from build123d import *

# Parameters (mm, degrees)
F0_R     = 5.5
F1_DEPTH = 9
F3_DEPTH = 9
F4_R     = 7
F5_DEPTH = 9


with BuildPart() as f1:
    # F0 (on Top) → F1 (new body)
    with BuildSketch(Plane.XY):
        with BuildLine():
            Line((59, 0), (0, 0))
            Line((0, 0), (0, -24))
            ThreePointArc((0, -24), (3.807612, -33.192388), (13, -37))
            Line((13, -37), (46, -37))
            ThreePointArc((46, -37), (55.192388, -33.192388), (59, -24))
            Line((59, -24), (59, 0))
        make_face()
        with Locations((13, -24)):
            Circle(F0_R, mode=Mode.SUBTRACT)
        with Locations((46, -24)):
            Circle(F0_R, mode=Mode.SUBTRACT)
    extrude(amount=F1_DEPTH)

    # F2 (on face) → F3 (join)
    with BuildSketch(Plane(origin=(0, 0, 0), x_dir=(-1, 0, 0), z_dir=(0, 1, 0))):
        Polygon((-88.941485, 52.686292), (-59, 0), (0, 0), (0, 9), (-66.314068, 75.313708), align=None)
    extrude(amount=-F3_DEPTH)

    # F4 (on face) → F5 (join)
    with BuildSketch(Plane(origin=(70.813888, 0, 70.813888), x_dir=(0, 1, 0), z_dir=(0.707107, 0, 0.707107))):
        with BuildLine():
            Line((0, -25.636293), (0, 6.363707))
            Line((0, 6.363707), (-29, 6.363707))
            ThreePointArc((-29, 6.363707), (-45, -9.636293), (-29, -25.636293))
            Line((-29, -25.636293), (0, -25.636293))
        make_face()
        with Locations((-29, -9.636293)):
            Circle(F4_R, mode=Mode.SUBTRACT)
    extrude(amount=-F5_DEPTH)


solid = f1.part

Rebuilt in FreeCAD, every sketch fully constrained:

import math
import FreeCAD as App
import Part
import Sketcher
from FreeCAD import Vector
Q = App.Units.Quantity


def add_polygon(sketch, points):
    """Adds a closed chain of lines whose ends are joined by coincident constraints."""
    first, n = sketch.GeometryCount, len(points)
    for a, b in zip(points, points[1:] + points[:1]):
        sketch.addGeometry(Part.LineSegment(App.Vector(*a, 0), App.Vector(*b, 0)), False)
    for i in range(n):
        sketch.addConstraint(Sketcher.Constraint("Coincident", first + i, 2, first + (i + 1) % n, 1))

doc = App.newDocument("Part")
body = doc.addObject("PartDesign::Body", "Body")

sketch1 = doc.addObject("Sketcher::SketchObject", "Sketch")
body.addObject(sketch1)
sketch1.AttachmentSupport = (doc.XY_Plane, [""])
sketch1.MapMode = "FlatFace"
sketch1.addGeometry([
    Part.LineSegment(Vector(59, 0, 0), Vector(0, 0, 0)),
    Part.LineSegment(Vector(0, 0, 0), Vector(0, -24, 0)),
    Part.ArcOfCircle(Part.Circle(Vector(13, -24, 0), Vector(0, 0, 1), 13), math.radians(-180), math.radians(-90)),
    Part.LineSegment(Vector(13, -37, 0), Vector(46, -37, 0)),
    Part.ArcOfCircle(Part.Circle(Vector(46, -24, 0), Vector(0, 0, 1), 13), math.radians(-90), math.radians(0)),
    Part.LineSegment(Vector(59, -24, 0), Vector(59, 0, 0)),
    Part.Circle(Vector(13, -24, 0), Vector(0, 0, 1), 6),
    Part.Circle(Vector(46, -24, 0), Vector(0, 0, 1), 6),
], False)
sketch1.addConstraint([
    Sketcher.Constraint("Coincident", 0, 2, 1, 1),
    Sketcher.Constraint("Tangent", 1, 2, 2, 1),
    Sketcher.Constraint("Tangent", 2, 2, 3, 1),
    Sketcher.Constraint("Tangent", 3, 2, 4, 1),
    Sketcher.Constraint("Tangent", 4, 2, 5, 1),
    Sketcher.Constraint("Coincident", 5, 2, 0, 1),
    Sketcher.Constraint("Horizontal", 0),
    Sketcher.Constraint("Vertical", 1),
    Sketcher.Constraint("Horizontal", 3),
    Sketcher.Constraint("Vertical", 5),
    Sketcher.Constraint("Coincident", 0, 2, -1, 1),
    Sketcher.Constraint("Coincident", 6, 3, 2, 3),
    Sketcher.Constraint("Coincident", 7, 3, 4, 3),
    Sketcher.Constraint("Equal", 2, 4),
    Sketcher.Constraint("Equal", 6, 7),
    Sketcher.Constraint("Diameter", 6, Q("11 mm")),
    Sketcher.Constraint("Radius", 2, Q("13.000001 mm")),
    Sketcher.Constraint("DistanceX", 0, 2, 0, 1, Q("59 mm")),
    Sketcher.Constraint("DistanceY", 1, 2, 1, 1, Q("24 mm")),
])
pad1 = doc.addObject("PartDesign::Pad", "Pad")
body.addObject(pad1)
pad1.Profile = sketch1
pad1.Length = 9

sketch2 = doc.addObject("Sketcher::SketchObject", "Sketch001")
body.addObject(sketch2)
sketch2.AttachmentSupport = (doc.XZ_Plane, [""])
sketch2.MapMode = "FlatFace"
add_polygon(sketch2, [(89, 53), (59, 0), (0, 0), (0, 9), (66, 75)])
sketch2.addConstraint([
    Sketcher.Constraint("Horizontal", 1),
    Sketcher.Constraint("Vertical", 2),
    Sketcher.Constraint("Coincident", 1, 2, -1, 1),
    Sketcher.Constraint("DistanceX", 1, 2, 1, 1, Q("59 mm")),
    Sketcher.Constraint("DistanceY", 2, 1, 2, 2, Q("9 mm")),
    Sketcher.Constraint("Angle", 4, Q("-44.999999 deg")),
    Sketcher.Constraint("Distance", 4, Q("31.999999 mm")),
    Sketcher.Constraint("Distance", 3, Q("93.782 mm")),
    Sketcher.Constraint("DistanceX", -1, 1, 3, 2, Q("66.314068 mm")),
])
pad2 = doc.addObject("PartDesign::Pad", "Pad001")
body.addObject(pad2)
pad2.Profile = sketch2
pad2.Length = 9

sketch3 = doc.addObject("Sketcher::SketchObject", "Sketch002")
body.addObject(sketch3)
sketch3.Placement = App.Placement(Vector(70.813888, 0, 70.813888), App.Rotation(Vector(0, 1, 0), Vector(-0.707106781, 0, 0.707106781), Vector(0.707106781, 0, 0.707106781), "ZXY"))
sketch3.addGeometry([
    Part.LineSegment(Vector(0, -26, 0), Vector(0, 6, 0)),
    Part.LineSegment(Vector(0, 6, 0), Vector(-29, 6, 0)),
    Part.ArcOfCircle(Part.Circle(Vector(-29, -10, 0), Vector(0, 0, 1), 16), math.radians(90), math.radians(270)),
    Part.LineSegment(Vector(-29, -26, 0), Vector(0, -26, 0)),
    Part.Circle(Vector(-29, -10, 0), Vector(0, 0, 1), 7),
], False)
sketch3.addConstraint([
    Sketcher.Constraint("Coincident", 0, 2, 1, 1),
    Sketcher.Constraint("Tangent", 1, 2, 2, 1),
    Sketcher.Constraint("Tangent", 2, 2, 3, 1),
    Sketcher.Constraint("Coincident", 3, 2, 0, 1),
    Sketcher.Constraint("Vertical", 0),
    Sketcher.Constraint("Horizontal", 1),
    Sketcher.Constraint("Horizontal", 3),
    Sketcher.Constraint("Coincident", 4, 3, 2, 3),
    Sketcher.Constraint("PointOnObject", 0, 2, -2),
    Sketcher.Constraint("Diameter", 4, Q("14 mm")),
    Sketcher.Constraint("Radius", 2, Q("16 mm")),
    Sketcher.Constraint("DistanceX", 1, 2, 1, 1, Q("29 mm")),
    Sketcher.Constraint("DistanceY", 2, 3, -1, 1, Q("9.636293 mm")),
])
pad3 = doc.addObject("PartDesign::Pad", "Pad002")
body.addObject(pad3)
pad3.Profile = sketch3
pad3.Length = 9
pad3.Reversed = True

doc.recompute()
